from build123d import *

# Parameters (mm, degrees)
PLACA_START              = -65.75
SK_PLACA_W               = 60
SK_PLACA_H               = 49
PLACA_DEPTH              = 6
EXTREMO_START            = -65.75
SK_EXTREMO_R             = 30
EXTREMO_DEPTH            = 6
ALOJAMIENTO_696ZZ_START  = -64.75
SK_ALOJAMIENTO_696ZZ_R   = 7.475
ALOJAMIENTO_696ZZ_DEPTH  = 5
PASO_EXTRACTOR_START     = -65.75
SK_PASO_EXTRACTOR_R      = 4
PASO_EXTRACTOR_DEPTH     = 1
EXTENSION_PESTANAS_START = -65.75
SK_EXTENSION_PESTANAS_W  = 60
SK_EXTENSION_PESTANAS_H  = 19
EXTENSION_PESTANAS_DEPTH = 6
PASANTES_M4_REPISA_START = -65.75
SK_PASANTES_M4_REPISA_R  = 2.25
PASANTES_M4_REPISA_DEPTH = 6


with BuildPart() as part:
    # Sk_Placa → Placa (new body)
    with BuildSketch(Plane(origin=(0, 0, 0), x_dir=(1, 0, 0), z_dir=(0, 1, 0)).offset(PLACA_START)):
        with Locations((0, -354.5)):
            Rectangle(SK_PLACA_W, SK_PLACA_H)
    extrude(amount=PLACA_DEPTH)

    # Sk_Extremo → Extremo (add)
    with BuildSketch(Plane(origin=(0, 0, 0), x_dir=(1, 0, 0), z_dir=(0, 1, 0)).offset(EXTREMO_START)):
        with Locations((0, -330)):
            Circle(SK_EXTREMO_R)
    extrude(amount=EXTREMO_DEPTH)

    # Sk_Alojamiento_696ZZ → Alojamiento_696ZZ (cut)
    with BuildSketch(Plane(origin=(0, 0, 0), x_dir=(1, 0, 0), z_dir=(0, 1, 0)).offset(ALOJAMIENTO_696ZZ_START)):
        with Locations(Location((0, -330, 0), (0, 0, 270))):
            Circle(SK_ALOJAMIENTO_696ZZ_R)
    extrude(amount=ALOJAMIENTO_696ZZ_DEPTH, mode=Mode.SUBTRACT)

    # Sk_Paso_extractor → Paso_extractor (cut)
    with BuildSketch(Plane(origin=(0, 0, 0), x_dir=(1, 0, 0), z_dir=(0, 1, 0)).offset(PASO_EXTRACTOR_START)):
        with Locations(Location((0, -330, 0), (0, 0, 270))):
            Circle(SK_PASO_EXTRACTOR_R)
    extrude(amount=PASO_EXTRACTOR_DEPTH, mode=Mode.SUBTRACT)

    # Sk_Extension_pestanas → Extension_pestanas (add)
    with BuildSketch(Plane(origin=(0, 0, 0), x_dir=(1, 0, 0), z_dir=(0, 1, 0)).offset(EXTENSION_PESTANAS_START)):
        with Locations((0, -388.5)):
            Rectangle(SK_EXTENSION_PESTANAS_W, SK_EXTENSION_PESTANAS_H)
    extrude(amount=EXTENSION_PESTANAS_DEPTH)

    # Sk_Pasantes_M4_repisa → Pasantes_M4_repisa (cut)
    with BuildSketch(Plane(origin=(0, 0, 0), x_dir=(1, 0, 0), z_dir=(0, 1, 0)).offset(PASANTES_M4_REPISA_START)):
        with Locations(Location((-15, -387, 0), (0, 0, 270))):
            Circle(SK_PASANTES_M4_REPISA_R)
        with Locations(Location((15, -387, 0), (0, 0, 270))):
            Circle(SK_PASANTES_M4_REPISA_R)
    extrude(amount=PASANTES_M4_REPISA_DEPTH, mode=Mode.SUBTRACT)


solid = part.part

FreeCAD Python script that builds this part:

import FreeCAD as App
import Part
import Sketcher
Q = App.Units.Quantity

doc = App.newDocument("Part")
body = doc.addObject("PartDesign::Body", "Body")

# Sketch on XZ plane
sketch1 = doc.addObject("Sketcher::SketchObject", "Sketch")
body.addObject(sketch1)
sketch1.AttachmentSupport = (doc.XZ_Plane, [""])
sketch1.MapMode = "FlatFace"
sketch1.AttachmentOffset = App.Placement(App.Vector(0, 0, 65.75), App.Rotation())
sketch1.addGeometry([
    Part.LineSegment(App.Vector(-30, 330, 0), App.Vector(-30, 379, 0)),
    Part.LineSegment(App.Vector(-30, 379, 0), App.Vector(30, 379, 0)),
    Part.LineSegment(App.Vector(30, 379, 0), App.Vector(30, 330, 0)),
    Part.LineSegment(App.Vector(30, 330, 0), App.Vector(-30, 330, 0)),
], False)
sketch1.addConstraint([
    Sketcher.Constraint("Coincident", 0, 2, 1, 1),
    Sketcher.Constraint("Coincident", 1, 2, 2, 1),
    Sketcher.Constraint("Coincident", 2, 2, 3, 1),
    Sketcher.Constraint("Coincident", 3, 2, 0, 1),
    Sketcher.Constraint("Vertical", 0),
    Sketcher.Constraint("Horizontal", 1),
    Sketcher.Constraint("Vertical", 2),
    Sketcher.Constraint("Horizontal", 3),
    Sketcher.Constraint("DistanceX", 1, 1, 1, 2, Q("60 mm")),
    Sketcher.Constraint("DistanceY", 0, 1, 0, 2, Q("49 mm")),
    Sketcher.Constraint("DistanceX", 0, 2, -1, 1, Q("30 mm")),
    Sketcher.Constraint("DistanceY", -1, 1, 0, 2, Q("379 mm")),
])
pad1 = doc.addObject("PartDesign::Pad", "Pad")
body.addObject(pad1)
pad1.Profile = sketch1
pad1.Length = 6
pad1.Reversed = True

# Sketch on XZ plane
sketch2 = doc.addObject("Sketcher::SketchObject", "Sketch001")
body.addObject(sketch2)
sketch2.AttachmentSupport = (doc.XZ_Plane, [""])
sketch2.MapMode = "FlatFace"
sketch2.AttachmentOffset = App.Placement(App.Vector(0, 0, 65.75), App.Rotation())
sketch2.addGeometry(Part.Circle(App.Vector(0, 330, 0), App.Vector(0, 0, 1), 30), False)
sketch2.addConstraint([
    Sketcher.Constraint("PointOnObject", 0, 3, -2),
    Sketcher.Constraint("Diameter", 0, Q("60 mm")),
    Sketcher.Constraint("DistanceY", -1, 1, 0, 3, Q("330 mm")),
])
pad2 = doc.addObject("PartDesign::Pad", "Pad001")
body.addObject(pad2)
pad2.Profile = sketch2
pad2.Length = 6
pad2.Reversed = True

# Sketch on XZ plane
sketch3 = doc.addObject("Sketcher::SketchObject", "Sketch002")
body.addObject(sketch3)
sketch3.AttachmentSupport = (doc.XZ_Plane, [""])
sketch3.MapMode = "FlatFace"
sketch3.AttachmentOffset = App.Placement(App.Vector(0, 0, 64.75), App.Rotation())
sketch3.addGeometry(Part.Circle(App.Vector(0, 330, 0), App.Vector(0, 0, 1), 7), False)
sketch3.addConstraint([
    Sketcher.Constraint("PointOnObject", 0, 3, -2),
    Sketcher.Constraint("Diameter", 0, Q("14.95 mm")),
    Sketcher.Constraint("DistanceY", -1, 1, 0, 3, Q("330 mm")),
])
pocket1 = doc.addObject("PartDesign::Pocket", "Pocket")
body.addObject(pocket1)
pocket1.Profile = sketch3
pocket1.Length = 5

# Sketch on XZ plane
sketch4 = doc.addObject("Sketcher::SketchObject", "Sketch003")
body.addObject(sketch4)
sketch4.AttachmentSupport = (doc.XZ_Plane, [""])
sketch4.MapMode = "FlatFace"
sketch4.AttachmentOffset = App.Placement(App.Vector(0, 0, 65.75), App.Rotation())
sketch4.addGeometry(Part.Circle(App.Vector(0, 330, 0), App.Vector(0, 0, 1), 4), False)
sketch4.addConstraint([
    Sketcher.Constraint("PointOnObject", 0, 3, -2),
    Sketcher.Constraint("Diameter", 0, Q("8 mm")),
    Sketcher.Constraint("DistanceY", -1, 1, 0, 3, Q("330 mm")),
])
pocket2 = doc.addObject("PartDesign::Pocket", "Pocket001")
body.addObject(pocket2)
pocket2.Profile = sketch4
pocket2.Length = 1

# Sketch on XZ plane
sketch5 = doc.addObject("Sketcher::SketchObject", "Sketch004")
body.addObject(sketch5)
sketch5.AttachmentSupport = (doc.XZ_Plane, [""])
sketch5.MapMode = "FlatFace"
sketch5.AttachmentOffset = App.Placement(App.Vector(0, 0, 65.75), App.Rotation())
sketch5.addGeometry([
    Part.LineSegment(App.Vector(-30, 379, 0), App.Vector(-30, 398, 0)),
    Part.LineSegment(App.Vector(-30, 398, 0), App.Vector(30, 398, 0)),
    Part.LineSegment(App.Vector(30, 398, 0), App.Vector(30, 379, 0)),
    Part.LineSegment(App.Vector(30, 379, 0), App.Vector(-30, 379, 0)),
], False)
sketch5.addConstraint([
    Sketcher.Constraint("Coincident", 0, 2, 1, 1),
    Sketcher.Constraint("Coincident", 1, 2, 2, 1),
    Sketcher.Constraint("Coincident", 2, 2, 3, 1),
    Sketcher.Constraint("Coincident", 3, 2, 0, 1),
    Sketcher.Constraint("Vertical", 0),
    Sketcher.Constraint("Horizontal", 1),
    Sketcher.Constraint("Vertical", 2),
    Sketcher.Constraint("Horizontal", 3),
    Sketcher.Constraint("DistanceX", 1, 1, 1, 2, Q("60 mm")),
    Sketcher.Constraint("DistanceY", 0, 1, 0, 2, Q("19 mm")),
    Sketcher.Constraint("DistanceX", 0, 2, -1, 1, Q("30 mm")),
    Sketcher.Constraint("DistanceY", -1, 1, 0, 2, Q("398 mm")),
])
pad3 = doc.addObject("PartDesign::Pad", "Pad002")
body.addObject(pad3)
pad3.Profile = sketch5
pad3.Length = 6
pad3.Reversed = True

# Sketch on XZ plane
sketch6 = doc.addObject("Sketcher::SketchObject", "Sketch005")
body.addObject(sketch6)
sketch6.AttachmentSupport = (doc.XZ_Plane, [""])
sketch6.MapMode = "FlatFace"
sketch6.AttachmentOffset = App.Placement(App.Vector(0, 0, 65.75), App.Rotation())
sketch6.addGeometry([
    Part.Circle(App.Vector(-15, 387, 0), App.Vector(0, 0, 1), 2.2),
    Part.Circle(App.Vector(15, 387, 0), App.Vector(0, 0, 1), 2.2),
], False)
sketch6.addConstraint([
    Sketcher.Constraint("Equal", 0, 1),
    Sketcher.Constraint("Symmetric", 0, 3, 1, 3, -2),
    Sketcher.Constraint("Diameter", 0, Q("4.5 mm")),
    Sketcher.Constraint("DistanceX", 0, 3, -1, 1, Q("15 mm")),
    Sketcher.Constraint("DistanceY", -1, 1, 0, 3, Q("387 mm")),
])
pocket3 = doc.addObject("PartDesign::Pocket", "Pocket002")
body.addObject(pocket3)
pocket3.Profile = sketch6
pocket3.Length = 6

doc.recompute()
